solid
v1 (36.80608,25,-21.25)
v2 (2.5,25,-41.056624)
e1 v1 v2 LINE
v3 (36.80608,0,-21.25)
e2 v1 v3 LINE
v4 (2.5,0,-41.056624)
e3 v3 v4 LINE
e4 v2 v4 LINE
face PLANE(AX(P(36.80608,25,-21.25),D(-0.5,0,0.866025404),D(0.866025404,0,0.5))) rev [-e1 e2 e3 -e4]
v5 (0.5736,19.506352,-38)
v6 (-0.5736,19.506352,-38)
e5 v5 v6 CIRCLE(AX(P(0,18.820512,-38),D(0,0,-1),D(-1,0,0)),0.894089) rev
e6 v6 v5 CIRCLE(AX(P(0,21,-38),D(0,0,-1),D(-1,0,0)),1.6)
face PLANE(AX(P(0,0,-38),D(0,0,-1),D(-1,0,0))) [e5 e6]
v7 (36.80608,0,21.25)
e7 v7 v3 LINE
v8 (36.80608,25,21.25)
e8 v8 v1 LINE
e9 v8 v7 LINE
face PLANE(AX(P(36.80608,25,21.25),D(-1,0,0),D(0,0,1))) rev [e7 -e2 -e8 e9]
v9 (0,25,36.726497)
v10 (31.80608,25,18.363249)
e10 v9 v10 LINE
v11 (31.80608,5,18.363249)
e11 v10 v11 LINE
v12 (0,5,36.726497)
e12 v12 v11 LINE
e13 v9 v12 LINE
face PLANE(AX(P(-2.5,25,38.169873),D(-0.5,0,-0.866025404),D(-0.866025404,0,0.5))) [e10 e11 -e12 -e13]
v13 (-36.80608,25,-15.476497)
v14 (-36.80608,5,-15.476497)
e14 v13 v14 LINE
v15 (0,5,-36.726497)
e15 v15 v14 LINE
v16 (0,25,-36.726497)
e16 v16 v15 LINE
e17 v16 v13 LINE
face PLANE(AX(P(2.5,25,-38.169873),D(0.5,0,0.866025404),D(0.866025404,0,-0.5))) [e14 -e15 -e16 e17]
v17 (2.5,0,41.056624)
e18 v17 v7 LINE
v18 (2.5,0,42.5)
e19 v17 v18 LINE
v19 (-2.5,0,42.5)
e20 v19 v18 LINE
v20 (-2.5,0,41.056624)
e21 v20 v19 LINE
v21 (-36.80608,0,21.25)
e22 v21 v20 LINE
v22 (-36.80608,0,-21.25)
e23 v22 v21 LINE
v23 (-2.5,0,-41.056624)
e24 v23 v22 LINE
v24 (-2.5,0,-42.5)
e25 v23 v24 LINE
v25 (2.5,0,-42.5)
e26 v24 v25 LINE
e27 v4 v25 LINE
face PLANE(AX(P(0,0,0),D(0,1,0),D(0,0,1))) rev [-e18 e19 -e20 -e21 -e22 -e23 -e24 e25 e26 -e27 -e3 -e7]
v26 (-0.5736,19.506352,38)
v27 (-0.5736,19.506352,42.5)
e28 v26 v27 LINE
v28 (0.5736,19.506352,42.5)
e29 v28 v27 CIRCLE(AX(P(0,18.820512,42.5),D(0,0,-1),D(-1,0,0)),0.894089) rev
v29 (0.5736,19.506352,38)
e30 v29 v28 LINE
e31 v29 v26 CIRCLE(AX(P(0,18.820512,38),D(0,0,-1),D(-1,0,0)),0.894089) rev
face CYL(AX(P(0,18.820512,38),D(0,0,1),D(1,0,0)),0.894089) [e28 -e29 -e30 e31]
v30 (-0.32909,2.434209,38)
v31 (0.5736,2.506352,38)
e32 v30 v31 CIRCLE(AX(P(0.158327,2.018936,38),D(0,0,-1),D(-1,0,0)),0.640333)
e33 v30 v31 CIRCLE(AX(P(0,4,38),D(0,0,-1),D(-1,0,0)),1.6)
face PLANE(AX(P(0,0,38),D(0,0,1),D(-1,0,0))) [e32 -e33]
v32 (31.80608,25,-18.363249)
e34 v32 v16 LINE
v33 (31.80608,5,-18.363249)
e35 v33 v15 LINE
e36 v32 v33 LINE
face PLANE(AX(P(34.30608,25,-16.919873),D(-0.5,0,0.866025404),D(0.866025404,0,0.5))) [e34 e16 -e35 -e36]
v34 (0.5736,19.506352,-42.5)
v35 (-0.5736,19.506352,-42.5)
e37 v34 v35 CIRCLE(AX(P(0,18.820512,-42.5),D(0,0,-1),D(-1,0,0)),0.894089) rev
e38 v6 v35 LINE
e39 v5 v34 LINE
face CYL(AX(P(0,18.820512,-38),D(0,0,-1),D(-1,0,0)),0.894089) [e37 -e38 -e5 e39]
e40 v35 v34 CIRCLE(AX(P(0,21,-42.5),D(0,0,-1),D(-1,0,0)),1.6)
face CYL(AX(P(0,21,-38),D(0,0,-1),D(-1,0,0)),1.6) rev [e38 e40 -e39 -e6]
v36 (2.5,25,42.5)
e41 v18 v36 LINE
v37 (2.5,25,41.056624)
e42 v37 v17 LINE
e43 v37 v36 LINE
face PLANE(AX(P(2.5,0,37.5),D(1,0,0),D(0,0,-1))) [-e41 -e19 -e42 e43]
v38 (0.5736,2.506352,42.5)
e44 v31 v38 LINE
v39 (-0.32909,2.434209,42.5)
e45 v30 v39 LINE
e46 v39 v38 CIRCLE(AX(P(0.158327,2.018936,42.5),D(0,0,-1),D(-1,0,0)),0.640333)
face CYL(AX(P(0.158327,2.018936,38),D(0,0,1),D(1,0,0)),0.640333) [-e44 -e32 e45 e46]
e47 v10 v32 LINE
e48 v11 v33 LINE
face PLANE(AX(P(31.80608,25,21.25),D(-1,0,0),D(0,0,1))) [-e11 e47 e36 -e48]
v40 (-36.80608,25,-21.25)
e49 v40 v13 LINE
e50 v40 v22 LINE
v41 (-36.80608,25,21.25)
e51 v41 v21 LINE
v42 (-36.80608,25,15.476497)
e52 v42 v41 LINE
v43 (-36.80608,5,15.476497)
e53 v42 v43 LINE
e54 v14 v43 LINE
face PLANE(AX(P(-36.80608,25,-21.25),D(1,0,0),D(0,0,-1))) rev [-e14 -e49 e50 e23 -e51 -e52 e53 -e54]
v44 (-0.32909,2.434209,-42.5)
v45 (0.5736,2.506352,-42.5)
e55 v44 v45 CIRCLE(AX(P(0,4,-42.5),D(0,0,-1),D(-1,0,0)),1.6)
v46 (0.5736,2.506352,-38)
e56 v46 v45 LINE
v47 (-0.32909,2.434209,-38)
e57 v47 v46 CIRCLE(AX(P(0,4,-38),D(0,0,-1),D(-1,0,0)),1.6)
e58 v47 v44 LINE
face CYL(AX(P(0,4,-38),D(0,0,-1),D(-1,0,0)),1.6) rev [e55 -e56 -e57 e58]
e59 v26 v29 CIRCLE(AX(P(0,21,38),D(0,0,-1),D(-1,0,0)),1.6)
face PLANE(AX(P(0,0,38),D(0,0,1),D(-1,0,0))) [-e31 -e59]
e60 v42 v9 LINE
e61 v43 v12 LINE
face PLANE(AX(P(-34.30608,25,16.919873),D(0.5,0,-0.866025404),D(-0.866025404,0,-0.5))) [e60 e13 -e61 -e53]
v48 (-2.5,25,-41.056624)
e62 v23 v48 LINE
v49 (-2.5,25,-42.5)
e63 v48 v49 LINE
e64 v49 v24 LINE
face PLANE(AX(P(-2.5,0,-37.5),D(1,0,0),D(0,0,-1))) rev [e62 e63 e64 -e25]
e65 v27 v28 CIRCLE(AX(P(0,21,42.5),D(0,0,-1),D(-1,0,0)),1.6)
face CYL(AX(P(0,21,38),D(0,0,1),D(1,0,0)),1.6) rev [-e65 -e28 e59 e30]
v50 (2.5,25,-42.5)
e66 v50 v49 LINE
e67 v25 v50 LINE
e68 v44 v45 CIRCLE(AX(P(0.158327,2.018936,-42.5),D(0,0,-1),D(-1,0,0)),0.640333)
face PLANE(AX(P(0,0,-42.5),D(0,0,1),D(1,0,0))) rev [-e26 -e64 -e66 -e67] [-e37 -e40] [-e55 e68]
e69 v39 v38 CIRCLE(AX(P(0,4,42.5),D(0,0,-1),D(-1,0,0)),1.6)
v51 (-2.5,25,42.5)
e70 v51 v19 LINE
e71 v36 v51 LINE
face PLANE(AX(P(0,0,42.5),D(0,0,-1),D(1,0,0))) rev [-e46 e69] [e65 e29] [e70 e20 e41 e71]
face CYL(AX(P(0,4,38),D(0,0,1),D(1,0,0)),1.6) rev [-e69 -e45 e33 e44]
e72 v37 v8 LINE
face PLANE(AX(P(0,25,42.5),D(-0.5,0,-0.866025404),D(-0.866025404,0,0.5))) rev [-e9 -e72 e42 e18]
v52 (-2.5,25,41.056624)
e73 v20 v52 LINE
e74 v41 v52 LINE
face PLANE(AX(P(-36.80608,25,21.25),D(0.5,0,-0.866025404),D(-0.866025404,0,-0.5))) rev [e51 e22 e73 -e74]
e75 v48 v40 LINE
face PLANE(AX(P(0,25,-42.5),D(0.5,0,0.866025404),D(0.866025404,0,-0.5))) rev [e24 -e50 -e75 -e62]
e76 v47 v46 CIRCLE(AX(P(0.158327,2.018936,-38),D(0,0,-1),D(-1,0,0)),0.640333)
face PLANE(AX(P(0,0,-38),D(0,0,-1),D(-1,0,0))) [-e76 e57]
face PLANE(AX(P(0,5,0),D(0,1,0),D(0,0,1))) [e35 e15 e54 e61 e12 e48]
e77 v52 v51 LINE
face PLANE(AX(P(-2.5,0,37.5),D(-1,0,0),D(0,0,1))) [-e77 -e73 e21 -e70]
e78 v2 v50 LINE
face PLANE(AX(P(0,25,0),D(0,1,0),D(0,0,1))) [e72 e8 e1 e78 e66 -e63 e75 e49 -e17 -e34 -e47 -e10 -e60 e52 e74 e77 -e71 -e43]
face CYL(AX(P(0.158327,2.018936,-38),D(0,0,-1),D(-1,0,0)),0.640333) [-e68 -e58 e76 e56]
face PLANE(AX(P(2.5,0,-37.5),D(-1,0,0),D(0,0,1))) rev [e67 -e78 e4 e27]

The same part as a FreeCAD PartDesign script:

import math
import FreeCAD as App
import Part
import Sketcher
from FreeCAD import Vector
Q = App.Units.Quantity


def faces_at(feature, points):
    """Names of the faces that lie closest to the given points."""
    faces = feature.Shape.Faces
    near = lambda p: min(range(len(faces)), key=lambda i: faces[i].distToShape(Part.Vertex(*p))[0])
    return sorted({f"Face{near(p) + 1}" for p in points})

doc = App.newDocument("Part")
body = doc.addObject("PartDesign::Body", "Body")

sketch1 = body.newObject("Sketcher::SketchObject", "Sketch")
sketch1.AttachmentSupport = (doc.getObject("XZ_Plane"), [""])
sketch1.MapMode = "FlatFace"
sketch1.addGeometry(Part.LineSegment(Vector(0, -42, 0), Vector(-37, -21, 0)), False)
sketch1.addGeometry(Part.LineSegment(Vector(-37, -21, 0), Vector(-37, 21, 0)), False)
sketch1.addGeometry(Part.LineSegment(Vector(-37, 21, 0), Vector(0, 42, 0)), False)
sketch1.addGeometry(Part.LineSegment(Vector(0, 42, 0), Vector(37, 21, 0)), False)
sketch1.addGeometry(Part.LineSegment(Vector(37, 21, 0), Vector(37, -21, 0)), False)
sketch1.addGeometry(Part.LineSegment(Vector(37, -21, 0), Vector(0, -42, 0)), False)
sketch1.addConstraint(Sketcher.Constraint("Coincident", 0, 2, 1, 1))
sketch1.addConstraint(Sketcher.Constraint("Coincident", 1, 2, 2, 1))
sketch1.addConstraint(Sketcher.Constraint("Coincident", 2, 2, 3, 1))
sketch1.addConstraint(Sketcher.Constraint("Coincident", 3, 2, 4, 1))
sketch1.addConstraint(Sketcher.Constraint("Coincident", 4, 2, 5, 1))
sketch1.addConstraint(Sketcher.Constraint("Coincident", 5, 2, 0, 1))
sketch1.addConstraint(Sketcher.Constraint("Vertical", 1))
sketch1.addConstraint(Sketcher.Constraint("Vertical", 4))
sketch1.addConstraint(Sketcher.Constraint("Symmetric", 0, 2, 3, 2, -1, 1))
sketch1.addConstraint(Sketcher.Constraint("Symmetric", 2, 2, 5, 2, -1, 1))
sketch1.addConstraint(Sketcher.Constraint("PointOnObject", 2, 2, -2))
sketch1.addConstraint(Sketcher.Constraint("Parallel", 2, 5))
sketch1.addConstraint(Sketcher.Constraint("Horizontal", 1, 2, 3, 2))
sketch1.addConstraint(Sketcher.Constraint("Angle", 0, Q("150 deg")))
sketch1.addConstraint(Sketcher.Constraint("DistanceY", 1, 1, 1, 2, Q("42.5 mm")))
sketch1.addConstraint(Sketcher.Constraint("DistanceY", 5, 2, 2, 2, Q("85 mm")))
pad1 = body.newObject("PartDesign::Pad", "Pad")
pad1.Profile = sketch1
pad1.Length = 25
pad1.Reversed = True
doc.recompute()

thickness = body.newObject("PartDesign::Thickness", "Thickness")
thickness.Base = (pad1, faces_at(pad1, [(0, 25, 0), (-36.806, 12.5, 0)]))
thickness.Value = 5
thickness.Reversed = True
thickness.Join = "Intersection"

sketch2 = body.newObject("Sketcher::SketchObject", "Sketch001")
sketch2.AttachmentSupport = (doc.getObject("XY_Plane"), [""])
sketch2.MapMode = "FlatFace"
sketch2.AttachmentOffset = App.Placement(Vector(0, 0, -42.5), App.Rotation())
sketch2.addGeometry(Part.LineSegment(Vector(-2, 25, 0), Vector(-2, 0, 0)), False)
sketch2.addGeometry(Part.LineSegment(Vector(-2, 0, 0), Vector(2, 0, 0)), False)
sketch2.addGeometry(Part.LineSegment(Vector(2, 0, 0), Vector(2, 25, 0)), False)
sketch2.addGeometry(Part.LineSegment(Vector(2, 25, 0), Vector(-2, 25, 0)), False)
sketch2.addConstraint(Sketcher.Constraint("Coincident", 0, 2, 1, 1))
sketch2.addConstraint(Sketcher.Constraint("Coincident", 1, 2, 2, 1))
sketch2.addConstraint(Sketcher.Constraint("Coincident", 2, 2, 3, 1))
sketch2.addConstraint(Sketcher.Constraint("Coincident", 3, 2, 0, 1))
sketch2.addConstraint(Sketcher.Constraint("Vertical", 0))
sketch2.addConstraint(Sketcher.Constraint("Horizontal", 1))
sketch2.addConstraint(Sketcher.Constraint("Vertical", 2))
sketch2.addConstraint(Sketcher.Constraint("Horizontal", 3))
sketch2.addConstraint(Sketcher.Constraint("Symmetric", 0, 2, 1, 2, -1, 1))
sketch2.addConstraint(Sketcher.Constraint("DistanceX", 1, 1, 1, 2, Q("5 mm")))
sketch2.addConstraint(Sketcher.Constraint("DistanceY", 0, 2, 0, 1, Q("25 mm")))
pad2 = body.newObject("PartDesign::Pad", "Pad001")
pad2.Profile = sketch2
pad2.Length = 5

sketch3 = body.newObject("Sketcher::SketchObject", "Sketch002")
sketch3.AttachmentSupport = (doc.getObject("XY_Plane"), [""])
sketch3.MapMode = "FlatFace"
sketch3.AttachmentOffset = App.Placement(Vector(0, 0, -42.5), App.Rotation())
sketch3.addGeometry(Part.ArcOfCircle(Part.Circle(Vector(0, 21, 0), Vector(0, 0, 1), 1.6), math.radians(180), math.radians(249)), False)
sketch3.addGeometry(Part.ArcOfCircle(Part.Circle(Vector(0, 21, 0), Vector(0, 0, 1), 1.6), math.radians(-69), math.radians(180)), False)
sketch3.addGeometry(Part.ArcOfCircle(Part.Circle(Vector(0, 18.8, 0), Vector(0, 0, 1), 0.9), math.radians(50), math.radians(130)), False)
sketch3.addGeometry(Part.ArcOfCircle(Part.Circle(Vector(0, 4, 0), Vector(0, 0, 1), 1.6), math.radians(180), math.radians(258)), False)
sketch3.addGeometry(Part.ArcOfCircle(Part.Circle(Vector(0, 4, 0), Vector(0, 0, 1), 1.6), math.radians(-69), math.radians(180)), False)
sketch3.addGeometry(Part.ArcOfCircle(Part.Circle(Vector(0.2, 2, 0), Vector(0, 0, 1), 0.6), math.radians(50), math.radians(140)), False)
sketch3.addConstraint(Sketcher.Constraint("Tangent", 0, 1, 1, 2))
sketch3.addConstraint(Sketcher.Constraint("Coincident", 1, 1, 2, 1))
sketch3.addConstraint(Sketcher.Constraint("Coincident", 2, 2, 0, 2))
sketch3.addConstraint(Sketcher.Constraint("Tangent", 3, 1, 4, 2))
sketch3.addConstraint(Sketcher.Constraint("Coincident", 4, 1, 5, 1))
sketch3.addConstraint(Sketcher.Constraint("Coincident", 5, 2, 3, 2))
sketch3.addConstraint(Sketcher.Constraint("Equal", 0, 1))
sketch3.addConstraint(Sketcher.Constraint("Equal", 1, 3))
sketch3.addConstraint(Sketcher.Constraint("Equal", 3, 4))
sketch3.addConstraint(Sketcher.Constraint("Symmetric", 1, 1, 2, 2, -2))
sketch3.addConstraint(Sketcher.Constraint("PointOnObject", 3, 3, -2))
sketch3.addConstraint(Sketcher.Constraint("Horizontal", 1, 3, 0, 1))
sketch3.addConstraint(Sketcher.Constraint("Horizontal", 4, 3, 3, 1))
sketch3.addConstraint(Sketcher.Constraint("Vertical", 1, 1, 4, 1))
sketch3.addConstraint(Sketcher.Constraint("Radius", 0, Q("1.6 mm")))
sketch3.addConstraint(Sketcher.Constraint("DistanceY", -1, 1, 0, 3, Q("21 mm")))
sketch3.addConstraint(Sketcher.Constraint("DistanceY", -1, 1, 3, 3, Q("4 mm")))
sketch3.addConstraint(Sketcher.Constraint("Radius", 2, Q("0.894089 mm")))
sketch3.addConstraint(Sketcher.Constraint("Radius", 5, Q("0.640333 mm")))
sketch3.addConstraint(Sketcher.Constraint("DistanceX", -1, 1, 1, 1, Q("0.5736 mm")))
sketch3.addConstraint(Sketcher.Constraint("DistanceX", 5, 2, -1, 1, Q("0.32909 mm")))
pocket1 = body.newObject("PartDesign::Pocket", "Pocket")
pocket1.Profile = sketch3
pocket1.Length = 4.5
pocket1.Reversed = True
doc.recompute()

mirrored = body.newObject("PartDesign::Mirrored", "Mirrored")
mirrored.Originals = [pad2, pocket1]
mirrored.MirrorPlane = (doc.getObject("XY_Plane"), [""])
body.Tip = mirrored

doc.recompute()
